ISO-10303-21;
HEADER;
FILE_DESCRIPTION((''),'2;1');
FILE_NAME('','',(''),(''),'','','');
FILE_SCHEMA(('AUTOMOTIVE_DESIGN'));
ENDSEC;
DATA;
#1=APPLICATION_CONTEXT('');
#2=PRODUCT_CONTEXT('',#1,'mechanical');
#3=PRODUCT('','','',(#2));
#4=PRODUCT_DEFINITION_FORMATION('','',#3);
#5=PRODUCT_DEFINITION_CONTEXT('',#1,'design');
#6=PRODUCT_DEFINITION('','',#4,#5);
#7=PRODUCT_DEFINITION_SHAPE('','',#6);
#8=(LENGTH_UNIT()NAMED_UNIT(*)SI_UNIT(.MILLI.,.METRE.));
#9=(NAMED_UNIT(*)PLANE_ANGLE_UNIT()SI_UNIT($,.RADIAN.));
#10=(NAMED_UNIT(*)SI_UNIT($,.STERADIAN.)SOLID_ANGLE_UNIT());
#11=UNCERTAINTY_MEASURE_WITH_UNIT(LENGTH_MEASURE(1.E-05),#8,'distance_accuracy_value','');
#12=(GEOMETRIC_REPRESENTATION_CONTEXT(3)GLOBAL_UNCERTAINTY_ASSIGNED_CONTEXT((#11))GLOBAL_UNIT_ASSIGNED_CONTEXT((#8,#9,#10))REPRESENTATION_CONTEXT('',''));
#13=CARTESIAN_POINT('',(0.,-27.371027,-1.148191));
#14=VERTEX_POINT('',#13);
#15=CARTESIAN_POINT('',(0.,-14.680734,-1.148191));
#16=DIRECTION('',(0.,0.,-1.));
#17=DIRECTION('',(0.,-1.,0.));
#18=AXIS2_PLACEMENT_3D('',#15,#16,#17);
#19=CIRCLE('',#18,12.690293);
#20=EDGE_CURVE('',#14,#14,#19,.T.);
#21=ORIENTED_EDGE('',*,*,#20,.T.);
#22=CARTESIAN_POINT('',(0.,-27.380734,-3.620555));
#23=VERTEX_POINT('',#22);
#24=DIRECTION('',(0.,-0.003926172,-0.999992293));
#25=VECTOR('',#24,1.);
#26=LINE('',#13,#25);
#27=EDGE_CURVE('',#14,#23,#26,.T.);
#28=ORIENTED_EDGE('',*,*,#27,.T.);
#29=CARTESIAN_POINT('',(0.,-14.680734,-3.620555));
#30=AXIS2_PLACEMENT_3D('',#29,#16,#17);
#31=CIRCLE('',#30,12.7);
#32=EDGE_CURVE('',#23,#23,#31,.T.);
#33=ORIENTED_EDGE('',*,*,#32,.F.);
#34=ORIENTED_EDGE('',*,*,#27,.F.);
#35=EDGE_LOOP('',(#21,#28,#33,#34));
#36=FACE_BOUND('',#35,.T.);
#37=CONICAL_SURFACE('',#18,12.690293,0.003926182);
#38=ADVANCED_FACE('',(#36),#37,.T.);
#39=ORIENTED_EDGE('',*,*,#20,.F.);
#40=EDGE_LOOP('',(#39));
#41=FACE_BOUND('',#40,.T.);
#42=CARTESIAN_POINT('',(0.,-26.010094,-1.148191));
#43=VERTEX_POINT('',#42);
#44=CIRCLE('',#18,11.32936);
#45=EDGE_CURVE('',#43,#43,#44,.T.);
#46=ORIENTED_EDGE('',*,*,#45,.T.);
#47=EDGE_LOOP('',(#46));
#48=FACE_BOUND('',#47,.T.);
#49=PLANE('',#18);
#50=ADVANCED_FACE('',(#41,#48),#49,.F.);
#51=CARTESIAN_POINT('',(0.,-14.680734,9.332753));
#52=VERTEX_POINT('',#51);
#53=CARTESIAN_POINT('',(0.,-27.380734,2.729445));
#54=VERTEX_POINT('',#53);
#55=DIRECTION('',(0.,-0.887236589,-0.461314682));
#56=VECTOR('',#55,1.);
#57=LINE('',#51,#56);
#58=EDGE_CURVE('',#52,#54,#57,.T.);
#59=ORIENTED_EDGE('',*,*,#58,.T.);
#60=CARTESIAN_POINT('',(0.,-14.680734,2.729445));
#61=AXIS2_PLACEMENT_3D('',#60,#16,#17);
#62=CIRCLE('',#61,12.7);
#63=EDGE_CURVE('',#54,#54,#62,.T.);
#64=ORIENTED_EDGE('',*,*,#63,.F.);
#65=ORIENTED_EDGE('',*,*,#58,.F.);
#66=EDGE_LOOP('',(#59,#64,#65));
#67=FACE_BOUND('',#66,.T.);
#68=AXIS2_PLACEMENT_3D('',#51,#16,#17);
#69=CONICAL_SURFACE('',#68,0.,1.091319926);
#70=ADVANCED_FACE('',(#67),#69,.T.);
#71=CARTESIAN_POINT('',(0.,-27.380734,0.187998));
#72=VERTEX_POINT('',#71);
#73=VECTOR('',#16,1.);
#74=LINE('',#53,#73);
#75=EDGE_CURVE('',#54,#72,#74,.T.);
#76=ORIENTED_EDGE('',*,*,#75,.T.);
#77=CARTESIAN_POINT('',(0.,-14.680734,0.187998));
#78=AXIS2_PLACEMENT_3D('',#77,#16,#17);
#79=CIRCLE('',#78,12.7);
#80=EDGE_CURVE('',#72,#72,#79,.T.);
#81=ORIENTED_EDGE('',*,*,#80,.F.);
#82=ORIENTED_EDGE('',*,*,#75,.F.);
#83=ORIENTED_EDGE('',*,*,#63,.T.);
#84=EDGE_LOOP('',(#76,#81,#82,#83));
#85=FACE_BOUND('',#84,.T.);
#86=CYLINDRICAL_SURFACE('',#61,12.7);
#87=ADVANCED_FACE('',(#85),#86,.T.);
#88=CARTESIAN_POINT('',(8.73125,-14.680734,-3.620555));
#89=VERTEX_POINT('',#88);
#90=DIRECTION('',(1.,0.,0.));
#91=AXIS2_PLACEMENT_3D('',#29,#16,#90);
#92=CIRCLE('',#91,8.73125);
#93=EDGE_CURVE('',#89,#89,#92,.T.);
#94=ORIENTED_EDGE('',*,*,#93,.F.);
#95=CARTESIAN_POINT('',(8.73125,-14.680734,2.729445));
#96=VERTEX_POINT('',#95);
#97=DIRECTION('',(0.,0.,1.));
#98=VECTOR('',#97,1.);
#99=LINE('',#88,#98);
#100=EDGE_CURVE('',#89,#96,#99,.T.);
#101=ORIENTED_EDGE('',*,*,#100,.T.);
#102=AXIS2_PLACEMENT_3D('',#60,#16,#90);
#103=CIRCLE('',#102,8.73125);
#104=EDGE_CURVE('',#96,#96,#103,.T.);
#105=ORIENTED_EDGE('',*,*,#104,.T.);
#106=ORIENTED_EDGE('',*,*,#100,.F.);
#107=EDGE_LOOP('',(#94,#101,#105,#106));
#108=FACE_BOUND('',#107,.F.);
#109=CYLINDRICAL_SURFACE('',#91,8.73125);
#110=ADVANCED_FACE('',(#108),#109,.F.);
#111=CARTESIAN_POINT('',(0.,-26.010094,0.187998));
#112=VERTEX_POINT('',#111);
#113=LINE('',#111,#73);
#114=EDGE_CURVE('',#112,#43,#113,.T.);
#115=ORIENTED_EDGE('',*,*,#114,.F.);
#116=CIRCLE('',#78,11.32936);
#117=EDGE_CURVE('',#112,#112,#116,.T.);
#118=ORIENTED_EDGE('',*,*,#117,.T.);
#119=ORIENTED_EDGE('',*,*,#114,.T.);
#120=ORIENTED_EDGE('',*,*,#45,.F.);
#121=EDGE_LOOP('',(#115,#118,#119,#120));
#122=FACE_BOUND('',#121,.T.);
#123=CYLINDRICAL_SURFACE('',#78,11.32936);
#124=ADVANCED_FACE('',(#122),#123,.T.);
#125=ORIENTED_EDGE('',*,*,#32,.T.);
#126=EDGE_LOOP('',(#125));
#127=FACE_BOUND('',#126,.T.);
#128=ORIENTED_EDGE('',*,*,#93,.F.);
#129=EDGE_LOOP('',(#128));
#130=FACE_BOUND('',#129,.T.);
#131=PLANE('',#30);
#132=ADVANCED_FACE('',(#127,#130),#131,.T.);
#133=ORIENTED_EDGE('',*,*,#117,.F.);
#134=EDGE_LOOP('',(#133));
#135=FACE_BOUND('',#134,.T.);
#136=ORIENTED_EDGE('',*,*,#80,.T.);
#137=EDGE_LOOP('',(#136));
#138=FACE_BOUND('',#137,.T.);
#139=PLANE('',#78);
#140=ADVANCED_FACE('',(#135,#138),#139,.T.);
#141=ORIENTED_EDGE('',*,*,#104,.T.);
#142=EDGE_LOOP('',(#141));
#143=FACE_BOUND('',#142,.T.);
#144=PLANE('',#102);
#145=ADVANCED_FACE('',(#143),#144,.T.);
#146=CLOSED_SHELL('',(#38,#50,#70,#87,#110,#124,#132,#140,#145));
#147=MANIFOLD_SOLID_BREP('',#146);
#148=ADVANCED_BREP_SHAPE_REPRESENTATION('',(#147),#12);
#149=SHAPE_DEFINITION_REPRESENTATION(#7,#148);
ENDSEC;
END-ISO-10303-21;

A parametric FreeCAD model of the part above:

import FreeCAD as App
import Part
import Sketcher

V = App.Vector
Q = App.Units.Quantity


def add_polygon(sketch, points):
    """Adds a closed chain of lines whose ends are joined by coincident constraints."""
    first, n = sketch.GeometryCount, len(points)
    for a, b in zip(points, points[1:] + points[:1]):
        sketch.addGeometry(Part.LineSegment(App.Vector(*a, 0), App.Vector(*b, 0)), False)
    for i in range(n):
        sketch.addConstraint(Sketcher.Constraint("Coincident", first + i, 2, first + (i + 1) % n, 1))

doc = App.newDocument("Part")
params = doc.addObject("Spreadsheet::Sheet", "Params")
for row, (alias, value) in enumerate([
    ("sketch1_width", "0.5 in"),
    ("revolution_angle", "360 deg"),
    ("sketch2_diameter", "0.6875 in"),
    ("pocket1_length", "0.25 in"),
], start=1):
    params.set(f"A{row}", alias)
    params.set(f"B{row}", "=" + value)
    params.setAlias(f"B{row}", alias)

body = doc.addObject("PartDesign::Body", "Body")

# Sketch on YZ plane
sketch1 = doc.addObject("Sketcher::SketchObject", "Sketch")
body.addObject(sketch1)
sketch1.AttachmentSupport = (doc.YZ_Plane, [""])
sketch1.MapMode = "FlatFace"
add_polygon(sketch1, [(-14.680734, 9.332753), (-27.380734, 2.729445), (-27.380734, 0.187998), (-26.010094, 0.187998), (-26.010094, -1.148191), (-27.371027, -1.148191), (-27.380734, -3.620555), (-14.680734, -3.620555)])  # lines 0-7
sketch1.addGeometry(Part.LineSegment(V(-14.680734, 9.332753, 0), V(-14.680734, -3.620555, 0)), True)  # axis
sketch1.addConstraint([
    Sketcher.Constraint("Vertical", 1),
    Sketcher.Constraint("Horizontal", 2),
    Sketcher.Constraint("Vertical", 3),
    Sketcher.Constraint("Horizontal", 4),
    Sketcher.Constraint("Horizontal", 6),
    Sketcher.Constraint("Vertical", 7),
    Sketcher.Constraint("Vertical", 8),
    Sketcher.Constraint("Coincident", 8, 1, 7, 2),
    Sketcher.Constraint("Horizontal", 5, 2, 8, 2),
    Sketcher.Constraint("Vertical", 1, 2, 5, 2),
    Sketcher.Constraint("DistanceX", 6, 1, 6, 2, Q("0.5 in")),
    Sketcher.Constraint("DistanceY", 5, 2, 0, 2, Q("0.25 in")),
    Sketcher.Constraint("DistanceX", 2, 1, 2, 2, Q("1.37064 mm")),
    Sketcher.Constraint("DistanceY", 3, 2, 3, 1, Q("1.336189 mm")),
    Sketcher.Constraint("DistanceX", 4, 2, 4, 1, Q("1.360933 mm")),
    Sketcher.Constraint("DistanceY", 1, 2, 1, 1, Q("2.541447 mm")),
    Sketcher.Constraint("DistanceY", 7, 1, 7, 2, Q("12.953308 mm")),
    Sketcher.Constraint("DistanceY", 3, 2, -1, 1, Q("1.148191 mm")),
    Sketcher.Constraint("DistanceX", 0, 2, -1, 1, Q("27.380734 mm")),
])
sketch1.setExpression("Constraints[18]", "Params.sketch1_width")
revolution = doc.addObject("PartDesign::Revolution", "Revolution")
body.addObject(revolution)
revolution.Profile = sketch1
revolution.ReferenceAxis = (sketch1, ["Axis0"])
revolution.setExpression("Angle", "Params.revolution_angle")

# Sketch on XY plane
sketch2 = doc.addObject("Sketcher::SketchObject", "Sketch001")
body.addObject(sketch2)
sketch2.AttachmentSupport = (doc.XY_Plane, [""])
sketch2.MapMode = "FlatFace"
sketch2.AttachmentOffset = App.Placement(V(0, 0, -3.620555), App.Rotation())
sketch2.addGeometry(Part.Circle(V(0, -14.680734, 0), V(0, 0, 1), 8.73125), False)
sketch2.addConstraint([
    Sketcher.Constraint("PointOnObject", 0, 3, -2),
    Sketcher.Constraint("Diameter", 0, Q("0.6875 in")),
    Sketcher.Constraint("DistanceY", 0, 3, -1, 1, Q("14.680734 mm")),
])
sketch2.setExpression("Constraints[1]", "Params.sketch2_diameter")
pocket1 = doc.addObject("PartDesign::Pocket", "Pocket")
body.addObject(pocket1)
pocket1.Profile = sketch2
pocket1.setExpression("Length", "Params.pocket1_length")
pocket1.Reversed = True

doc.recompute()
